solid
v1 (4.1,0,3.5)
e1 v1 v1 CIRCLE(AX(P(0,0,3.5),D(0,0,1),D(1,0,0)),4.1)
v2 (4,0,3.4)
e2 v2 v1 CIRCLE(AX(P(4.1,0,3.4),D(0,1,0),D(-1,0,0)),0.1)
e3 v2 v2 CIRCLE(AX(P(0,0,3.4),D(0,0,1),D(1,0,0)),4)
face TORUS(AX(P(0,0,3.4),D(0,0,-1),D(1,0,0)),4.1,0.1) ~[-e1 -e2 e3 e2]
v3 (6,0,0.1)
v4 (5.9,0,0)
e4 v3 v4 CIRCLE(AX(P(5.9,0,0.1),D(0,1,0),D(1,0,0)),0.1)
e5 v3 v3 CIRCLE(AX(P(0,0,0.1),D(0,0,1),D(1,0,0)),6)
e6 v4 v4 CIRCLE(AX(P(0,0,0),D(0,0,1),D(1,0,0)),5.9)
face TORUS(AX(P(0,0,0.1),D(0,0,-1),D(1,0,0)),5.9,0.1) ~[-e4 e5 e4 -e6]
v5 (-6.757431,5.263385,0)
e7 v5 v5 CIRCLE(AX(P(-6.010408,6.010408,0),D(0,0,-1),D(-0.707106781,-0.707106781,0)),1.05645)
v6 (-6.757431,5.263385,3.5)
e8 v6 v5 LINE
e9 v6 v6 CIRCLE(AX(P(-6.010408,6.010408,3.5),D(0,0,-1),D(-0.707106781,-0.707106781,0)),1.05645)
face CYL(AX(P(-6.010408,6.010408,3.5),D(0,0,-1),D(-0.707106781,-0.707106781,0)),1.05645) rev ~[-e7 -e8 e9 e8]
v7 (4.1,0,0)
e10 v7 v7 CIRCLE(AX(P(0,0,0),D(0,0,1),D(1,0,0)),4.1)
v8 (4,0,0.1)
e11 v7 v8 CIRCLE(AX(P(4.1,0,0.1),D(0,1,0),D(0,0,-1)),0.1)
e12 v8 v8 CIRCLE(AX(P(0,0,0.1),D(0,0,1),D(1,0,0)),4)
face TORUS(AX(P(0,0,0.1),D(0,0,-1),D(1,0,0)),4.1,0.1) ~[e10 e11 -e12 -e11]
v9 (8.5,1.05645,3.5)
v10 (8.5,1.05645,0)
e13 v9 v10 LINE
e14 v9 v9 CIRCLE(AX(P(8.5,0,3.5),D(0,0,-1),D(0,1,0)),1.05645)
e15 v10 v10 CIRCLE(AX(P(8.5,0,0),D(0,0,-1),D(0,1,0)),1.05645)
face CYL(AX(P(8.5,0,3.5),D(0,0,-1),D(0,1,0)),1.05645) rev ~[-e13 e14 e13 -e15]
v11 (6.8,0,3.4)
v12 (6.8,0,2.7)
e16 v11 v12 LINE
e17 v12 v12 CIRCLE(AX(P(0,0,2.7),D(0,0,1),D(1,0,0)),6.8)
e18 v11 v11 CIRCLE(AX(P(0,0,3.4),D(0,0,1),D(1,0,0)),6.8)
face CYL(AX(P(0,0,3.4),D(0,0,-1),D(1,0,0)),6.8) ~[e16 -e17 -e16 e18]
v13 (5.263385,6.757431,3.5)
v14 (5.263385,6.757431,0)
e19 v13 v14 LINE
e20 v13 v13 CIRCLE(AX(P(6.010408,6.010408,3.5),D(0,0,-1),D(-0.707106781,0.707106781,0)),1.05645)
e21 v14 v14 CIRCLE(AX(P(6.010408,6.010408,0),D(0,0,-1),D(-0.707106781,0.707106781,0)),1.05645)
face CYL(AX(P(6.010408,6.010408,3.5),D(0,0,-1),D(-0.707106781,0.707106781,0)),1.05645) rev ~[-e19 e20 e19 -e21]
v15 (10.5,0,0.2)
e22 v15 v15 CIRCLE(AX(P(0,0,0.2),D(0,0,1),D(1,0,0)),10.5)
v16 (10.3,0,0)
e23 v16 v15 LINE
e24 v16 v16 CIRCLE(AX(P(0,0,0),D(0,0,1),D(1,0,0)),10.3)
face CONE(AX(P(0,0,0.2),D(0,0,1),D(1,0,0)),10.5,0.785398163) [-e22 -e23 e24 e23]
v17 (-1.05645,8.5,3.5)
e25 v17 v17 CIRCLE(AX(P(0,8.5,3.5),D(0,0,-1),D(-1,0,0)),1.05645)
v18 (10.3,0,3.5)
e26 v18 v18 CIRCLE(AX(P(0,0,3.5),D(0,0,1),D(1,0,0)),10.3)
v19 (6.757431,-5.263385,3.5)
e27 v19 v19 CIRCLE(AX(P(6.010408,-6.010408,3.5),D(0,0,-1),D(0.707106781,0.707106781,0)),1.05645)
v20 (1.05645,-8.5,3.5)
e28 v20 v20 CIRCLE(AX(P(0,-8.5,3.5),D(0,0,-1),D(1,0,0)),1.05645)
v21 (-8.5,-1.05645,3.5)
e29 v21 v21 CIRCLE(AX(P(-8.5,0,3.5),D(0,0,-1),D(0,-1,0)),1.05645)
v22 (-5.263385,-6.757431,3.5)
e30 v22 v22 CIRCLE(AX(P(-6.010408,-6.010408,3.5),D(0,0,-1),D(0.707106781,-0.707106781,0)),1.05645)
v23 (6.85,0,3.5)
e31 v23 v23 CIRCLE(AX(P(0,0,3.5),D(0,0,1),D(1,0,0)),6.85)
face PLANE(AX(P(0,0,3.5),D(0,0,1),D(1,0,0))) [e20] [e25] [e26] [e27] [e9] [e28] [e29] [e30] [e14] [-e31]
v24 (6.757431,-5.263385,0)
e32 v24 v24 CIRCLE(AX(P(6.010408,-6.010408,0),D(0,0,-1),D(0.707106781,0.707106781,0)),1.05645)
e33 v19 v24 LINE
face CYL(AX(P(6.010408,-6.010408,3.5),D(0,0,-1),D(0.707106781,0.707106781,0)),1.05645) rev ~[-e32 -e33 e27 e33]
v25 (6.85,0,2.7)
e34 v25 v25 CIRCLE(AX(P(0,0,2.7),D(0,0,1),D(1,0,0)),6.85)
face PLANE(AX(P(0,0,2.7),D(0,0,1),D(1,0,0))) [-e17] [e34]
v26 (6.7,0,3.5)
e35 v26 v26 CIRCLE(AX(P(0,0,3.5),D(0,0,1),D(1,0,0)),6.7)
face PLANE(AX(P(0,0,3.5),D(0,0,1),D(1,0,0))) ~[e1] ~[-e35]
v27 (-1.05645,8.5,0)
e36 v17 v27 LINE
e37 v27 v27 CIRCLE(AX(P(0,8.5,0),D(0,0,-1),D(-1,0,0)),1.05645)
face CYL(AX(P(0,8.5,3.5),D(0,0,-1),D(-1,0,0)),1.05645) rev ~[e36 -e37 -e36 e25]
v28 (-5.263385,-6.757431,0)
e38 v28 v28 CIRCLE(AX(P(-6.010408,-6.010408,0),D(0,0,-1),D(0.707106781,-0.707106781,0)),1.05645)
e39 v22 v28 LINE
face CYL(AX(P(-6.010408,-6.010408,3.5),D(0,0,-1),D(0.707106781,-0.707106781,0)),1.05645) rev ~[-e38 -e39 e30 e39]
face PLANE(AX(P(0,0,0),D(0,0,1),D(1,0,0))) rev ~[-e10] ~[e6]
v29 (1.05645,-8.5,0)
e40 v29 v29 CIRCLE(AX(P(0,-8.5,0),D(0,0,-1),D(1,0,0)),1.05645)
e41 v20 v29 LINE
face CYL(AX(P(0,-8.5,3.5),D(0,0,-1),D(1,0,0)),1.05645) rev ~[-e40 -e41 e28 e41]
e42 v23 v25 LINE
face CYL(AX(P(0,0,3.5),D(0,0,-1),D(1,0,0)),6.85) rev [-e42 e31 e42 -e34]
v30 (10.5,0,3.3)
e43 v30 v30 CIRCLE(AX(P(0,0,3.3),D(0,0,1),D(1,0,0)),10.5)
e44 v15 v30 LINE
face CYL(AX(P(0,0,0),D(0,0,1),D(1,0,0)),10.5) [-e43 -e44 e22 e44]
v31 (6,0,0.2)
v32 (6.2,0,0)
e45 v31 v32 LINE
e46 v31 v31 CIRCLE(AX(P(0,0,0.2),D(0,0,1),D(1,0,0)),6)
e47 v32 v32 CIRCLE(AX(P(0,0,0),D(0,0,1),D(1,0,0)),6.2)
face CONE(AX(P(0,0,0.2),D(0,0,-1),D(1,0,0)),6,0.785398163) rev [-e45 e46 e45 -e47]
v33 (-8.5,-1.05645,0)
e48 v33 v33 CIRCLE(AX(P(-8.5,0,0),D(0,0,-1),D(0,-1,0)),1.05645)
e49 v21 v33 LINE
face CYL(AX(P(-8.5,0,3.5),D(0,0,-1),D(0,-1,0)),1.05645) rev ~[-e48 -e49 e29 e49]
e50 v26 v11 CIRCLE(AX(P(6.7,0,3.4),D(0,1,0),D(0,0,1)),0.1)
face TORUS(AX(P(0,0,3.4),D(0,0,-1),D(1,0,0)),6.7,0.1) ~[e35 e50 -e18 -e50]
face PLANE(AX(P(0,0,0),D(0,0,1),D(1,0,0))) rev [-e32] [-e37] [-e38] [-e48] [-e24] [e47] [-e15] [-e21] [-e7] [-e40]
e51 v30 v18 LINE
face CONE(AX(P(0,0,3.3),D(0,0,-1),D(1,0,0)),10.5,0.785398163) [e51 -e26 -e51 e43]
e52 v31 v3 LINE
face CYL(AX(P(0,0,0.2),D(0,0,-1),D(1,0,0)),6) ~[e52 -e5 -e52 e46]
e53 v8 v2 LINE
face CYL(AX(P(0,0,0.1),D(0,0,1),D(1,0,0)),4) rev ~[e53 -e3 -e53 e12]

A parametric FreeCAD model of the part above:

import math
import FreeCAD as App
import Part
import Sketcher
from FreeCAD import Vector


def edges_at(feature, points):
    """Names of the edges that pass closest to the given points."""
    edges = feature.Shape.Edges
    near = lambda p: min(range(len(edges)), key=lambda i: edges[i].distToShape(Part.Vertex(*p))[0])
    return sorted({f"Edge{near(p) + 1}" for p in points})

doc = App.newDocument("Part")
params = doc.addObject("Spreadsheet::Sheet", "Params")
for row, (alias, value) in enumerate([
    ("sketch1_radius", "0.1 mm"),
    ("sketch1_height", "0.1 mm"),
    ("sketch1_height2", "0.8 mm"),
    ("sketch1_height3", "3.5 mm"),
    ("sketch1_width", "4.3 mm"),
    ("revolution_angle", "360 deg"),
    ("hole_diameter", "2.1129 mm"),
    ("chamfer_size", "0.2 mm"),
], start=1):
    params.set(f"A{row}", alias)
    params.set(f"B{row}", "=" + value)
    params.setAlias(f"B{row}", alias)

body = doc.addObject("PartDesign::Body", "Body")

# Sketch on XZ plane
sketch1 = doc.addObject("Sketcher::SketchObject", "Sketch")
body.addObject(sketch1)
sketch1.AttachmentSupport = (doc.XZ_Plane, [""])
sketch1.MapMode = "FlatFace"
sketch1.addGeometry(Part.LineSegment(Vector(10.5, 0, 0), Vector(6.2, 0, 0)), False)
sketch1.addGeometry(Part.LineSegment(Vector(6.2, 0, 0), Vector(6, 0.2, 0)), False)
sketch1.addGeometry(Part.LineSegment(Vector(6, 0.2, 0), Vector(6, 0.1, 0)), False)
sketch1.addGeometry(Part.ArcOfCircle(Part.Circle(Vector(5.9, 0.1, 0), Vector(0, 0, 1), 0.1), math.radians(-90), math.radians(0)), False)
sketch1.addGeometry(Part.LineSegment(Vector(5.9, 0, 0), Vector(4.1, 0, 0)), False)
sketch1.addGeometry(Part.ArcOfCircle(Part.Circle(Vector(4.1, 0.1, 0), Vector(0, 0, 1), 0.1), math.radians(180), math.radians(270)), False)
sketch1.addGeometry(Part.LineSegment(Vector(4, 0.1, 0), Vector(4, 3.4, 0)), False)
sketch1.addGeometry(Part.ArcOfCircle(Part.Circle(Vector(4.1, 3.4, 0), Vector(0, 0, 1), 0.1), math.radians(90), math.radians(180)), False)
sketch1.addGeometry(Part.LineSegment(Vector(4.1, 3.5, 0), Vector(6.7, 3.5, 0)), False)
sketch1.addGeometry(Part.ArcOfCircle(Part.Circle(Vector(6.7, 3.4, 0), Vector(0, 0, 1), 0.1), math.radians(0), math.radians(90)), False)
sketch1.addGeometry(Part.LineSegment(Vector(6.8, 3.4, 0), Vector(6.8, 2.7, 0)), False)
sketch1.addGeometry(Part.LineSegment(Vector(6.8, 2.7, 0), Vector(6.85, 2.7, 0)), False)
sketch1.addGeometry(Part.LineSegment(Vector(6.85, 2.7, 0), Vector(6.85, 3.5, 0)), False)
sketch1.addGeometry(Part.LineSegment(Vector(6.85, 3.5, 0), Vector(10.5, 3.5, 0)), False)
sketch1.addGeometry(Part.LineSegment(Vector(10.5, 3.5, 0), Vector(10.5, 0, 0)), False)
sketch1.addConstraint(Sketcher.Constraint("Coincident", 0, 2, 1, 1))
sketch1.addConstraint(Sketcher.Constraint("Coincident", 1, 2, 2, 1))
sketch1.addConstraint(Sketcher.Constraint("Tangent", 2, 2, 3, 2))
sketch1.addConstraint(Sketcher.Constraint("Tangent", 3, 1, 4, 1))
sketch1.addConstraint(Sketcher.Constraint("Tangent", 4, 2, 5, 2))
sketch1.addConstraint(Sketcher.Constraint("Tangent", 5, 1, 6, 1))
sketch1.addConstraint(Sketcher.Constraint("Tangent", 6, 2, 7, 2))
sketch1.addConstraint(Sketcher.Constraint("Tangent", 7, 1, 8, 1))
sketch1.addConstraint(Sketcher.Constraint("Tangent", 8, 2, 9, 2))
sketch1.addConstraint(Sketcher.Constraint("Tangent", 9, 1, 10, 1))
sketch1.addConstraint(Sketcher.Constraint("Coincident", 10, 2, 11, 1))
sketch1.addConstraint(Sketcher.Constraint("Coincident", 11, 2, 12, 1))
sketch1.addConstraint(Sketcher.Constraint("Coincident", 12, 2, 13, 1))
sketch1.addConstraint(Sketcher.Constraint("Coincident", 13, 2, 14, 1))
sketch1.addConstraint(Sketcher.Constraint("Coincident", 14, 2, 0, 1))
sketch1.addConstraint(Sketcher.Constraint("Horizontal", 0))
sketch1.addConstraint(Sketcher.Constraint("Vertical", 2))
sketch1.addConstraint(Sketcher.Constraint("Horizontal", 4))
sketch1.addConstraint(Sketcher.Constraint("Vertical", 6))
sketch1.addConstraint(Sketcher.Constraint("Horizontal", 8))
sketch1.addConstraint(Sketcher.Constraint("Vertical", 10))
sketch1.addConstraint(Sketcher.Constraint("Horizontal", 11))
sketch1.addConstraint(Sketcher.Constraint("Vertical", 12))
sketch1.addConstraint(Sketcher.Constraint("Horizontal", 13))
sketch1.addConstraint(Sketcher.Constraint("Vertical", 14))
sketch1.addConstraint(Sketcher.Constraint("Equal", 3, 5))
sketch1.addConstraint(Sketcher.Constraint("Equal", 5, 7))
sketch1.addConstraint(Sketcher.Constraint("Equal", 7, 9))
sketch1.addConstraint(Sketcher.Constraint("PointOnObject", 0, 2, -1))
sketch1.addConstraint(Sketcher.Constraint("PointOnObject", 3, 1, -1))
sketch1.addConstraint(Sketcher.Constraint("Horizontal", 8, 2, 12, 2))
sketch1.addConstraint(Sketcher.Constraint("Radius", 3, 0.1))
sketch1.addConstraint(Sketcher.Constraint("DistanceY", 2, 2, 2, 1, 0.1))
sketch1.addConstraint(Sketcher.Constraint("DistanceY", 12, 1, 12, 2, 0.8))
sketch1.addConstraint(Sketcher.Constraint("DistanceY", 14, 2, 14, 1, 3.5))
sketch1.addConstraint(Sketcher.Constraint("DistanceX", 3, 3, 9, 3, 0.8))
sketch1.addConstraint(Sketcher.Constraint("DistanceX", 1, 2, 0, 2, 0.2))
sketch1.addConstraint(Sketcher.Constraint("DistanceX", 0, 2, 0, 1, 4.3))
sketch1.addConstraint(Sketcher.Constraint("DistanceX", 4, 2, 4, 1, 1.8))
sketch1.addConstraint(Sketcher.Constraint("DistanceX", -1, 1, 1, 2, 6.0))
sketch1.addConstraint(Sketcher.Constraint("DistanceX", 11, 1, 11, 2, 0.05))
sketch1.setExpression("Constraints[31]", "Params.sketch1_radius")
sketch1.setExpression("Constraints[32]", "Params.sketch1_height")
sketch1.setExpression("Constraints[33]", "Params.sketch1_height2")
sketch1.setExpression("Constraints[34]", "Params.sketch1_height3")
sketch1.setExpression("Constraints[37]", "Params.sketch1_width")
revolution = doc.addObject("PartDesign::Revolution", "Revolution")
body.addObject(revolution)
revolution.Profile = sketch1
revolution.ReferenceAxis = (sketch1, ["V_Axis"])
revolution.setExpression("Angle", "Params.revolution_angle")

# Sketch on XY plane
sketch2 = doc.addObject("Sketcher::SketchObject", "Sketch001")
body.addObject(sketch2)
sketch2.AttachmentSupport = (doc.XY_Plane, [""])
sketch2.MapMode = "FlatFace"
sketch2.AttachmentOffset = App.Placement(Vector(0, 0, 3.5), App.Rotation())
sketch2.addGeometry(Part.Circle(Vector(-8.5, 0, 0), Vector(0, 0, 1), 1.1), False)
sketch2.addConstraint(Sketcher.Constraint("PointOnObject", 0, 3, -1))
sketch2.addConstraint(Sketcher.Constraint("Diameter", 0, 2.113))
sketch2.addConstraint(Sketcher.Constraint("DistanceX", 0, 3, -1, 1, 8.5))
doc.recompute()
hole = doc.addObject("PartDesign::Hole", "Hole")
body.addObject(hole)
hole.Profile = sketch2
hole.ThreadType = "None"
hole.setExpression("Diameter", "Params.hole_diameter")
hole.DepthType = "ThroughAll"
doc.recompute()

polarpattern = doc.addObject("PartDesign::PolarPattern", "PolarPattern")
body.addObject(polarpattern)
polarpattern.Originals = [hole]
polarpattern.Axis = (doc.Z_Axis, [""])
polarpattern.Angle = 360
polarpattern.Occurrences = 8
body.Tip = polarpattern
doc.recompute()

chamfer = doc.addObject("PartDesign::Chamfer", "Chamfer")
body.addObject(chamfer)
chamfer.Base = (polarpattern, edges_at(polarpattern, [(-10.5, 0, 3.5), (-10.5, 0, 0)]))
chamfer.setExpression("Size", "Params.chamfer_size")

doc.recompute()
